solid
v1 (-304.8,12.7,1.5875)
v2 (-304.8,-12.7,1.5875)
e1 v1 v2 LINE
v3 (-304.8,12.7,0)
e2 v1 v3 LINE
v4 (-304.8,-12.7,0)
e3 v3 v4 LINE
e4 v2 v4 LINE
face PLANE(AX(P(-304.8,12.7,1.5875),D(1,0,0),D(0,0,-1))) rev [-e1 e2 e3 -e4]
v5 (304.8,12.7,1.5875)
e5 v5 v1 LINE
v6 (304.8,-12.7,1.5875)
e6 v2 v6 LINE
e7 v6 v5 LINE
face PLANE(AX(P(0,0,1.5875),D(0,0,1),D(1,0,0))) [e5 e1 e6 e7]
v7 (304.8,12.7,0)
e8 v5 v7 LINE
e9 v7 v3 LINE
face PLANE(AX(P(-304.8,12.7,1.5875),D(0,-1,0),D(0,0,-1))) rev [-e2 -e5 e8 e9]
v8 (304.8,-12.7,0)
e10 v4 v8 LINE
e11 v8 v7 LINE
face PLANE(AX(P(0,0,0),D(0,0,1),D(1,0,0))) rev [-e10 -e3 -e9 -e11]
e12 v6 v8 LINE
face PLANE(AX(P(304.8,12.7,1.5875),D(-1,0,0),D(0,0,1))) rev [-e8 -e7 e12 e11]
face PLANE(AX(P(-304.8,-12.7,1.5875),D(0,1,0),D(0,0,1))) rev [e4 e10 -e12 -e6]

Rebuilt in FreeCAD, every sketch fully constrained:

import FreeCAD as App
import Part
import Sketcher
Q = App.Units.Quantity


def add_polygon(sketch, points):
    """Adds a closed chain of lines whose ends are joined by coincident constraints."""
    first, n = sketch.GeometryCount, len(points)
    for a, b in zip(points, points[1:] + points[:1]):
        sketch.addGeometry(Part.LineSegment(App.Vector(*a, 0), App.Vector(*b, 0)), False)
    for i in range(n):
        sketch.addConstraint(Sketcher.Constraint("Coincident", first + i, 2, first + (i + 1) % n, 1))

doc = App.newDocument("Part")
body = doc.addObject("PartDesign::Body", "Body")

sketch1 = body.newObject("Sketcher::SketchObject", "Sketch")
sketch1.AttachmentSupport = (doc.getObject("XY_Plane"), [""])
sketch1.MapMode = "FlatFace"
add_polygon(sketch1, [(-305, 13), (-305, -13), (305, -13), (305, 13)])
sketch1.addConstraint([
    Sketcher.Constraint("Vertical", 0),
    Sketcher.Constraint("Horizontal", 1),
    Sketcher.Constraint("Vertical", 2),
    Sketcher.Constraint("Horizontal", 3),
    Sketcher.Constraint("Symmetric", 0, 2, 2, 2, -1, 1),
    Sketcher.Constraint("DistanceX", 1, 1, 1, 2, Q("24 in")),
    Sketcher.Constraint("DistanceY", 0, 2, 0, 1, Q("1 in")),
])
pad1 = body.newObject("PartDesign::Pad", "Pad")
pad1.Profile = sketch1
pad1.Length = Q("0.0625 in")

doc.recompute()
